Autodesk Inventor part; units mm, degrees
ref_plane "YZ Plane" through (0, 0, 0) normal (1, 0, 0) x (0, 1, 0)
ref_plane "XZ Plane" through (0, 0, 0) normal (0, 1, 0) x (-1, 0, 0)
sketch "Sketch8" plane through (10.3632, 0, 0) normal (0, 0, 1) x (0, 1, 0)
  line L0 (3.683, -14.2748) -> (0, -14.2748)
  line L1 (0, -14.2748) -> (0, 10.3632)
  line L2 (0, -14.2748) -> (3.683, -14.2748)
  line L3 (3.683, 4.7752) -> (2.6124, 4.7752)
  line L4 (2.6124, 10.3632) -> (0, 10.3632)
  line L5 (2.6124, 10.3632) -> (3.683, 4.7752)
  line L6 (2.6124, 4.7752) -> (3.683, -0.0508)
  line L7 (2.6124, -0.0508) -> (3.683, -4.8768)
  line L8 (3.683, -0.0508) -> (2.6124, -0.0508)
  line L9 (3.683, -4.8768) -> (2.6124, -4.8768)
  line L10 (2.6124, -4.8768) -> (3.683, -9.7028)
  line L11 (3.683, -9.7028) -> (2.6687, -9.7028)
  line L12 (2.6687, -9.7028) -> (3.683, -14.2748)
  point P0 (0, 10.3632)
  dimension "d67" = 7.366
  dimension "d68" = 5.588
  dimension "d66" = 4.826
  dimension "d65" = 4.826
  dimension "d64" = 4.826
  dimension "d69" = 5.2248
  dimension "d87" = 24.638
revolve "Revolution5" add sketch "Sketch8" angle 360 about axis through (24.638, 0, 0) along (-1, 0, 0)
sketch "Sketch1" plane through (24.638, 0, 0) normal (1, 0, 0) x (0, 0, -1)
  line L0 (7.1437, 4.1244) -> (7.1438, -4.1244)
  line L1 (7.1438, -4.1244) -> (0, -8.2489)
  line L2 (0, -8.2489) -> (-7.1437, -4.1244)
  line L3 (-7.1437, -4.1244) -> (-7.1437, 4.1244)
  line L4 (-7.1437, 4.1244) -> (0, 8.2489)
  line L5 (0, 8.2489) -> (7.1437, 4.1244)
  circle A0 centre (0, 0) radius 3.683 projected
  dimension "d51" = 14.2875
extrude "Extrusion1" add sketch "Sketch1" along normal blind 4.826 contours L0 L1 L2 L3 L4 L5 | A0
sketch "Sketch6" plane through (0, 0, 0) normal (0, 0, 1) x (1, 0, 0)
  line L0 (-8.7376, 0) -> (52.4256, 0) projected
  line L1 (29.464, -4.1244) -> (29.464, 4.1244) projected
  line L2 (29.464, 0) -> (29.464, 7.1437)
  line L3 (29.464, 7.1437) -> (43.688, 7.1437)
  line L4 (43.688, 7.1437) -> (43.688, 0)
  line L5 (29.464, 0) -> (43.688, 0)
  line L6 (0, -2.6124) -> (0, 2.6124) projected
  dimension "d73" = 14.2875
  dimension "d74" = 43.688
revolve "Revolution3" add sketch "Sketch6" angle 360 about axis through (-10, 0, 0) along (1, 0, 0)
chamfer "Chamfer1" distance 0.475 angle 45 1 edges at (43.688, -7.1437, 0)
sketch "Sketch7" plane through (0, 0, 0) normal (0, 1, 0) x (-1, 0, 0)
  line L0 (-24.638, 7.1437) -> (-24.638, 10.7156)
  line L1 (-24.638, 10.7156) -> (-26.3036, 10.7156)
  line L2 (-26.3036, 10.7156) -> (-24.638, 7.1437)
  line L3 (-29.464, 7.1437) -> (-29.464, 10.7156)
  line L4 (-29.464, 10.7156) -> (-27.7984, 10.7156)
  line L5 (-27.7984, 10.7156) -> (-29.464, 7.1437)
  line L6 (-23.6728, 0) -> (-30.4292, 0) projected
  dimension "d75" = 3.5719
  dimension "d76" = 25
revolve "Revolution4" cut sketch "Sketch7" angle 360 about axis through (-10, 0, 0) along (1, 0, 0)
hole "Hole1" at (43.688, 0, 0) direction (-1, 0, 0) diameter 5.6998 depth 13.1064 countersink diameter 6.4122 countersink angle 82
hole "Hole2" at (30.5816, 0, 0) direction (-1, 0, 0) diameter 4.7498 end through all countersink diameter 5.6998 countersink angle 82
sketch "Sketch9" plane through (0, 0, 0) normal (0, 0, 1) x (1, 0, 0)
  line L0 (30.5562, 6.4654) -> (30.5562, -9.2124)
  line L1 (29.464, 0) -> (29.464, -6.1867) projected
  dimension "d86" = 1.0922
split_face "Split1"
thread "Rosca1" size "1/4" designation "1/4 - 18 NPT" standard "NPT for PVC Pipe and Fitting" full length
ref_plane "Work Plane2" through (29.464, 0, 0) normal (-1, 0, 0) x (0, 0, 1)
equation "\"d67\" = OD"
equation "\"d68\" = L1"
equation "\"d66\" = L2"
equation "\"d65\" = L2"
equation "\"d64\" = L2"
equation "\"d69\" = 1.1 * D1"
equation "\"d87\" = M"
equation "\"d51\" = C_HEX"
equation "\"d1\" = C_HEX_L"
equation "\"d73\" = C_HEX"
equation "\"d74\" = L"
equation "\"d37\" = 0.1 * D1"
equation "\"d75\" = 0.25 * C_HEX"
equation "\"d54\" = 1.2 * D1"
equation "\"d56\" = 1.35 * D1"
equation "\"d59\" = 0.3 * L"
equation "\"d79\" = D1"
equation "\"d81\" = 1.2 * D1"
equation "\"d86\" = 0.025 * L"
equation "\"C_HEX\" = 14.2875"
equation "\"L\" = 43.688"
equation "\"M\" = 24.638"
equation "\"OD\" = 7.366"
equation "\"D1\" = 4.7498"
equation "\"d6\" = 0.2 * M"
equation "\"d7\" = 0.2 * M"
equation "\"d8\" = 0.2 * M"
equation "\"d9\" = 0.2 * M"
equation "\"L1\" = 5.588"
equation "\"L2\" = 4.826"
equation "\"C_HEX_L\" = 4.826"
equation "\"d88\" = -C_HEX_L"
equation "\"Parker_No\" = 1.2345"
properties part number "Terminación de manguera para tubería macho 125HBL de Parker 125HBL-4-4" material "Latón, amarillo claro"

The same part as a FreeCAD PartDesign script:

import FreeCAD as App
import Part
import Sketcher
from FreeCAD import Vector
Q = App.Units.Quantity


def edges_at(feature, points):
    """Names of the edges that pass closest to the given points."""
    edges = feature.Shape.Edges
    near = lambda p: min(range(len(edges)), key=lambda i: edges[i].distToShape(Part.Vertex(*p))[0])
    return sorted({f"Edge{near(p) + 1}" for p in points})


def add_polygon(sketch, points):
    """Adds a closed chain of lines whose ends are joined by coincident constraints."""
    first, n = sketch.GeometryCount, len(points)
    for a, b in zip(points, points[1:] + points[:1]):
        sketch.addGeometry(Part.LineSegment(App.Vector(*a, 0), App.Vector(*b, 0)), False)
    for i in range(n):
        sketch.addConstraint(Sketcher.Constraint("Coincident", first + i, 2, first + (i + 1) % n, 1))

doc = App.newDocument("Part")
params = doc.addObject("Spreadsheet::Sheet", "Params")
for row, (alias, value) in enumerate([
    ("sketch1_width", "0.97 in"),
    ("sketch1_height", "0.145 in"),
    ("sketch1_length", "0.224 in"),
    ("revolution_angle", "360 deg"),
    ("pad1_length", "0.19 in"),
    ("sketch3_width", "0.56 in"),
    ("sketch3_height", "0.281248 in"),
    ("revolution2_angle", "360 deg"),
    ("chamfer_size", "0.0187008 in"),
    ("sketch4_height", "0.1406299 in"),
    ("groove_angle", "360 deg"),
    ("hole_diameter", "0.2244016 in"),
    ("hole_depth", "0.516 in"),
    ("hole_csink_diameter", "6.4122 mm"),
    ("sketch6_diameter", "0.187 in"),
    ("hole2_diameter", "0.187 in"),
    ("hole2_csink_diameter", "0.2244016 in"),
], start=1):
    params.set(f"A{row}", alias)
    params.set(f"B{row}", "=" + value)
    params.setAlias(f"B{row}", alias)

body = doc.addObject("PartDesign::Body", "Body")

sketch1 = doc.addObject("Sketcher::SketchObject", "Sketch")
body.addObject(sketch1)
sketch1.AttachmentSupport = (doc.XY_Plane, [""])
sketch1.MapMode = "FlatFace"
add_polygon(sketch1, [(24.6, 0), (24.6, 3.7), (20.1, 2.7), (20.1, 3.7), (15.2, 2.6), (15.2, 3.7), (10.4, 2.6), (10.4, 3.7), (5.6, 2.6), (5.6, 3.7), (0, 2.6), (0, 0)])
sketch1.addConstraint([
    Sketcher.Constraint("Vertical", 0),
    Sketcher.Constraint("Vertical", 2),
    Sketcher.Constraint("Vertical", 4),
    Sketcher.Constraint("Vertical", 6),
    Sketcher.Constraint("Vertical", 8),
    Sketcher.Constraint("Vertical", 10),
    Sketcher.Constraint("Horizontal", 11),
    Sketcher.Constraint("Coincident", 10, 2, -1, 1),
    Sketcher.Constraint("Parallel", 1, 3),
    Sketcher.Constraint("Parallel", 3, 5),
    Sketcher.Constraint("Parallel", 5, 7),
    Sketcher.Constraint("Horizontal", 0, 2, 2, 2),
    Sketcher.Constraint("Horizontal", 2, 2, 4, 2),
    Sketcher.Constraint("Horizontal", 3, 2, 5, 2),
    Sketcher.Constraint("Horizontal", 4, 2, 6, 2),
    Sketcher.Constraint("Horizontal", 5, 2, 7, 2),
    Sketcher.Constraint("Horizontal", 6, 2, 8, 2),
    Sketcher.Constraint("Horizontal", 7, 2, 9, 2),
    Sketcher.Constraint("DistanceX", 11, 1, 11, 2, Q("0.97 in")),
    Sketcher.Constraint("DistanceX", -1, 1, 7, 2, Q("0.22 in")),
    Sketcher.Constraint("DistanceX", 3, 2, 1, 2, Q("0.19 in")),
    Sketcher.Constraint("DistanceY", 0, 1, 0, 2, Q("0.145 in")),
    Sketcher.Constraint("Distance", 9, Q("0.224 in")),
])
sketch1.setExpression("Constraints[30]", "Params.sketch1_width")
sketch1.setExpression("Constraints[33]", "Params.sketch1_height")
sketch1.setExpression("Constraints[34]", "Params.sketch1_length")
revolution = doc.addObject("PartDesign::Revolution", "Revolution")
body.addObject(revolution)
revolution.Profile = sketch1
revolution.ReferenceAxis = (sketch1, ["H_Axis"])
revolution.setExpression("Angle", "Params.revolution_angle")

sketch2 = doc.addObject("Sketcher::SketchObject", "Sketch001")
body.addObject(sketch2)
sketch2.AttachmentSupport = (doc.YZ_Plane, [""])
sketch2.MapMode = "FlatFace"
sketch2.AttachmentOffset = App.Placement(Vector(0, 0, 0.97 * 25.4), App.Rotation())
add_polygon(sketch2, [(-4, -7), (4, -7), (8, 0), (4, 7), (-4, 7), (-8, 0)])
sketch2.addConstraint([
    Sketcher.Constraint("Horizontal", 0),
    Sketcher.Constraint("Horizontal", 3),
    Sketcher.Constraint("Symmetric", 0, 2, 3, 2, -1, 1),
    Sketcher.Constraint("Symmetric", 1, 2, 4, 2, -1, 1),
    Sketcher.Constraint("PointOnObject", 1, 2, -1),
    Sketcher.Constraint("Parallel", 2, 5),
    Sketcher.Constraint("Vertical", 0, 2, 2, 2),
    Sketcher.Constraint("Angle", 1, Q("59.9995 deg")),
    Sketcher.Constraint("DistanceY", 0, 2, 2, 2, Q("0.5625 in")),
    Sketcher.Constraint("DistanceX", 0, 1, 0, 2, 8.2488),
])
pad1 = doc.addObject("PartDesign::Pad", "Pad")
body.addObject(pad1)
pad1.Profile = sketch2
pad1.setExpression("Length", "Params.pad1_length")

sketch3 = doc.addObject("Sketcher::SketchObject", "Sketch002")
body.addObject(sketch3)
sketch3.AttachmentSupport = (doc.XY_Plane, [""])
sketch3.MapMode = "FlatFace"
add_polygon(sketch3, [(29, 7), (29, 0), (44, 0), (44, 7)])
sketch3.addConstraint([
    Sketcher.Constraint("Vertical", 0),
    Sketcher.Constraint("Horizontal", 1),
    Sketcher.Constraint("Vertical", 2),
    Sketcher.Constraint("Horizontal", 3),
    Sketcher.Constraint("PointOnObject", 0, 2, -1),
    Sketcher.Constraint("DistanceX", -1, 1, 1, 2, Q("1.72 in")),
    Sketcher.Constraint("DistanceX", 1, 1, 1, 2, Q("0.56 in")),
    Sketcher.Constraint("DistanceY", 0, 2, 0, 1, Q("0.281248 in")),
])
sketch3.setExpression("Constraints[10]", "Params.sketch3_width")
sketch3.setExpression("Constraints[11]", "Params.sketch3_height")
revolution2 = doc.addObject("PartDesign::Revolution", "Revolution001")
body.addObject(revolution2)
revolution2.Profile = sketch3
revolution2.ReferenceAxis = (sketch3, ["H_Axis"])
revolution2.setExpression("Angle", "Params.revolution2_angle")
doc.recompute()

chamfer = doc.addObject("PartDesign::Chamfer", "Chamfer")
body.addObject(chamfer)
chamfer.Base = (revolution2, edges_at(revolution2, [(43.688, -7.144, 0)]))
chamfer.setExpression("Size", "Params.chamfer_size")

sketch4 = doc.addObject("Sketcher::SketchObject", "Sketch003")
body.addObject(sketch4)
sketch4.AttachmentSupport = (doc.XZ_Plane, [""])
sketch4.MapMode = "FlatFace"
add_polygon(sketch4, [(26.3, 10.7), (24.6, 7.1), (24.6, 10.7)])
add_polygon(sketch4, [(29.5, 10.7), (29.5, 7.1), (27.8, 10.7)])
sketch4.addConstraint([
    Sketcher.Constraint("Vertical", 1),
    Sketcher.Constraint("Horizontal", 2),
    Sketcher.Constraint("Vertical", 3),
    Sketcher.Constraint("Horizontal", 5),
    Sketcher.Constraint("Horizontal", 0, 2, 3, 2),
    Sketcher.Constraint("Horizontal", 2, 2, 4, 2),
    Sketcher.Constraint("Equal", 2, 5),
    Sketcher.Constraint("DistanceY", 1, 1, 1, 2, Q("0.1406299 in")),
    Sketcher.Constraint("Angle", 0, Q("-115 deg")),
    Sketcher.Constraint("DistanceX", -1, 1, 0, 2, Q("0.97 in")),
    Sketcher.Constraint("DistanceX", -1, 1, 3, 2, Q("1.16 in")),
    Sketcher.Constraint("DistanceY", -1, 1, 0, 2, Q("0.281248 in")),
])
sketch4.setExpression("Constraints[13]", "Params.sketch4_height")
groove = doc.addObject("PartDesign::Groove", "Groove")
body.addObject(groove)
groove.Profile = sketch4
groove.ReferenceAxis = (sketch4, ["H_Axis"])
groove.setExpression("Angle", "Params.groove_angle")

sketch5 = doc.addObject("Sketcher::SketchObject", "Sketch004")
body.addObject(sketch5)
sketch5.AttachmentSupport = (doc.YZ_Plane, [""])
sketch5.MapMode = "FlatFace"
sketch5.AttachmentOffset = App.Placement(Vector(0, 0, 1.72 * 25.4), App.Rotation())
sketch5.addGeometry(Part.Circle(Vector(0, 0, 0), Vector(0, 0, 1), 2.8), False)
sketch5.addConstraint([
    Sketcher.Constraint("Coincident", 0, 3, -1, 1),
    Sketcher.Constraint("Diameter", 0, Q("0.2244 in")),
])
doc.recompute()
hole = doc.addObject("PartDesign::Hole", "Hole")
body.addObject(hole)
hole.Profile = sketch5
hole.ThreadType = "None"
hole.setExpression("Diameter", "Params.hole_diameter")
hole.DepthType = "Dimension"
hole.setExpression("Depth", "Params.hole_depth")
hole.DrillPoint = "Flat"
hole.HoleCutType = "Countersink"
hole.setExpression("HoleCutDiameter", "Params.hole_csink_diameter")
hole.HoleCutCountersinkAngle = 82

sketch6 = doc.addObject("Sketcher::SketchObject", "Sketch005")
body.addObject(sketch6)
sketch6.AttachmentSupport = (doc.YZ_Plane, [""])
sketch6.MapMode = "FlatFace"
sketch6.AttachmentOffset = App.Placement(Vector(0, 0, 1.204 * 25.4), App.Rotation())
sketch6.addGeometry(Part.Circle(Vector(0, 0, 0), Vector(0, 0, 1), 2.4), False)
sketch6.addConstraint([
    Sketcher.Constraint("Coincident", 0, 3, -1, 1),
    Sketcher.Constraint("Diameter", 0, Q("0.187 in")),
])
sketch6.setExpression("Constraints[1]", "Params.sketch6_diameter")
doc.recompute()
hole2 = doc.addObject("PartDesign::Hole", "Hole001")
body.addObject(hole2)
hole2.Profile = sketch6
hole2.ThreadType = "None"
hole2.setExpression("Diameter", "Params.hole2_diameter")
hole2.DepthType = "ThroughAll"
hole2.HoleCutType = "Countersink"
hole2.setExpression("HoleCutDiameter", "Params.hole2_csink_diameter")
hole2.HoleCutCountersinkAngle = 82

doc.recompute()
